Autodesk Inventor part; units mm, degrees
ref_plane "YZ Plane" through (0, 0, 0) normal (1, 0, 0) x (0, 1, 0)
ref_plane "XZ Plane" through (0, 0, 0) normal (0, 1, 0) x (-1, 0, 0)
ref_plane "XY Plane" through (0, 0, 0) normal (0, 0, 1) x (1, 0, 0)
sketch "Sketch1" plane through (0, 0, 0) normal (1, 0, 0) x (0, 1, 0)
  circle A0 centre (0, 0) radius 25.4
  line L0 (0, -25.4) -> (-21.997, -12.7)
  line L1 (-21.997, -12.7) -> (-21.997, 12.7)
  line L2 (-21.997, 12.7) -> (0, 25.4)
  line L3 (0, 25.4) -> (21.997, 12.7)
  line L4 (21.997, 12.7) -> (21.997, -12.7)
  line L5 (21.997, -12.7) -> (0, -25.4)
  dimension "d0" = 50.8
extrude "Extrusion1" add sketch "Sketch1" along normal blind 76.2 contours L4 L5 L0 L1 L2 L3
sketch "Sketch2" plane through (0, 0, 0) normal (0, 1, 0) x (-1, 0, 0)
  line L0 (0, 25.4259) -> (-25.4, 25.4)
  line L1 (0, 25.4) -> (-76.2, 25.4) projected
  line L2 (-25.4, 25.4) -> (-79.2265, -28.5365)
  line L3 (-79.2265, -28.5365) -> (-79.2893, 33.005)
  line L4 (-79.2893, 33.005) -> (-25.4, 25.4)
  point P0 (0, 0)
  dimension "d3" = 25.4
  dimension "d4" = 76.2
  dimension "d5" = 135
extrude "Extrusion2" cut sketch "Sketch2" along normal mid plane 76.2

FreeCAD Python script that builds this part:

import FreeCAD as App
import Part
import Sketcher

V = App.Vector
Q = App.Units.Quantity


def add_polygon(sketch, points):
    """Adds a closed chain of lines whose ends are joined by coincident constraints."""
    first, n = sketch.GeometryCount, len(points)
    for a, b in zip(points, points[1:] + points[:1]):
        sketch.addGeometry(Part.LineSegment(App.Vector(*a, 0), App.Vector(*b, 0)), False)
    for i in range(n):
        sketch.addConstraint(Sketcher.Constraint("Coincident", first + i, 2, first + (i + 1) % n, 1))

doc = App.newDocument("Part")
body = doc.addObject("PartDesign::Body", "Body")

sketch1 = body.newObject("Sketcher::SketchObject", "Sketch")
sketch1.AttachmentSupport = (doc.getObject("YZ_Plane"), [""])
sketch1.MapMode = "FlatFace"
add_polygon(sketch1, [(22, -13), (22, 13), (0, 25), (-22, 13), (-22, -13), (0, -25)])
sketch1.addConstraint([
    Sketcher.Constraint("Vertical", 0),
    Sketcher.Constraint("Vertical", 3),
    Sketcher.Constraint("Symmetric", 0, 2, 3, 2, -1, 1),
    Sketcher.Constraint("Symmetric", 1, 2, 4, 2, -1, 1),
    Sketcher.Constraint("PointOnObject", 1, 2, -2),
    Sketcher.Constraint("Parallel", 2, 5),
    Sketcher.Constraint("Horizontal", 0, 2, 2, 2),
    Sketcher.Constraint("DistanceY", 4, 2, 1, 2, Q("2 in")),
    Sketcher.Constraint("DistanceY", 0, 1, 0, 2, Q("1 in")),
    Sketcher.Constraint("Distance", 1, Q("1 in")),
])
pad1 = body.newObject("PartDesign::Pad", "Pad")
pad1.Profile = sketch1
pad1.Length = Q("3 in")

sketch2 = body.newObject("Sketcher::SketchObject", "Sketch001")
sketch2.AttachmentSupport = (doc.getObject("XZ_Plane"), [""])
sketch2.MapMode = "FlatFace"
add_polygon(sketch2, [(79, -29), (25, 25), (79, 33)])
sketch2.addConstraint([
    Sketcher.Constraint("Distance", 0, Q("3 in")),
    Sketcher.Constraint("DistanceX", -1, 1, 0, 2, Q("1 in")),
    Sketcher.Constraint("DistanceY", -1, 1, 0, 2, Q("1 in")),
    Sketcher.Constraint("Distance", 2, Q("2.4229 in")),
    Sketcher.Constraint("DistanceY", -1, 1, 1, 2, Q("1.2994 in")),
    Sketcher.Constraint("Distance", 1, Q("54.4233 mm")),
])
pocket1 = body.newObject("PartDesign::Pocket", "Pocket")
pocket1.Profile = sketch2
pocket1.Length = Q("3 in")
pocket1.Midplane = True

doc.recompute()
